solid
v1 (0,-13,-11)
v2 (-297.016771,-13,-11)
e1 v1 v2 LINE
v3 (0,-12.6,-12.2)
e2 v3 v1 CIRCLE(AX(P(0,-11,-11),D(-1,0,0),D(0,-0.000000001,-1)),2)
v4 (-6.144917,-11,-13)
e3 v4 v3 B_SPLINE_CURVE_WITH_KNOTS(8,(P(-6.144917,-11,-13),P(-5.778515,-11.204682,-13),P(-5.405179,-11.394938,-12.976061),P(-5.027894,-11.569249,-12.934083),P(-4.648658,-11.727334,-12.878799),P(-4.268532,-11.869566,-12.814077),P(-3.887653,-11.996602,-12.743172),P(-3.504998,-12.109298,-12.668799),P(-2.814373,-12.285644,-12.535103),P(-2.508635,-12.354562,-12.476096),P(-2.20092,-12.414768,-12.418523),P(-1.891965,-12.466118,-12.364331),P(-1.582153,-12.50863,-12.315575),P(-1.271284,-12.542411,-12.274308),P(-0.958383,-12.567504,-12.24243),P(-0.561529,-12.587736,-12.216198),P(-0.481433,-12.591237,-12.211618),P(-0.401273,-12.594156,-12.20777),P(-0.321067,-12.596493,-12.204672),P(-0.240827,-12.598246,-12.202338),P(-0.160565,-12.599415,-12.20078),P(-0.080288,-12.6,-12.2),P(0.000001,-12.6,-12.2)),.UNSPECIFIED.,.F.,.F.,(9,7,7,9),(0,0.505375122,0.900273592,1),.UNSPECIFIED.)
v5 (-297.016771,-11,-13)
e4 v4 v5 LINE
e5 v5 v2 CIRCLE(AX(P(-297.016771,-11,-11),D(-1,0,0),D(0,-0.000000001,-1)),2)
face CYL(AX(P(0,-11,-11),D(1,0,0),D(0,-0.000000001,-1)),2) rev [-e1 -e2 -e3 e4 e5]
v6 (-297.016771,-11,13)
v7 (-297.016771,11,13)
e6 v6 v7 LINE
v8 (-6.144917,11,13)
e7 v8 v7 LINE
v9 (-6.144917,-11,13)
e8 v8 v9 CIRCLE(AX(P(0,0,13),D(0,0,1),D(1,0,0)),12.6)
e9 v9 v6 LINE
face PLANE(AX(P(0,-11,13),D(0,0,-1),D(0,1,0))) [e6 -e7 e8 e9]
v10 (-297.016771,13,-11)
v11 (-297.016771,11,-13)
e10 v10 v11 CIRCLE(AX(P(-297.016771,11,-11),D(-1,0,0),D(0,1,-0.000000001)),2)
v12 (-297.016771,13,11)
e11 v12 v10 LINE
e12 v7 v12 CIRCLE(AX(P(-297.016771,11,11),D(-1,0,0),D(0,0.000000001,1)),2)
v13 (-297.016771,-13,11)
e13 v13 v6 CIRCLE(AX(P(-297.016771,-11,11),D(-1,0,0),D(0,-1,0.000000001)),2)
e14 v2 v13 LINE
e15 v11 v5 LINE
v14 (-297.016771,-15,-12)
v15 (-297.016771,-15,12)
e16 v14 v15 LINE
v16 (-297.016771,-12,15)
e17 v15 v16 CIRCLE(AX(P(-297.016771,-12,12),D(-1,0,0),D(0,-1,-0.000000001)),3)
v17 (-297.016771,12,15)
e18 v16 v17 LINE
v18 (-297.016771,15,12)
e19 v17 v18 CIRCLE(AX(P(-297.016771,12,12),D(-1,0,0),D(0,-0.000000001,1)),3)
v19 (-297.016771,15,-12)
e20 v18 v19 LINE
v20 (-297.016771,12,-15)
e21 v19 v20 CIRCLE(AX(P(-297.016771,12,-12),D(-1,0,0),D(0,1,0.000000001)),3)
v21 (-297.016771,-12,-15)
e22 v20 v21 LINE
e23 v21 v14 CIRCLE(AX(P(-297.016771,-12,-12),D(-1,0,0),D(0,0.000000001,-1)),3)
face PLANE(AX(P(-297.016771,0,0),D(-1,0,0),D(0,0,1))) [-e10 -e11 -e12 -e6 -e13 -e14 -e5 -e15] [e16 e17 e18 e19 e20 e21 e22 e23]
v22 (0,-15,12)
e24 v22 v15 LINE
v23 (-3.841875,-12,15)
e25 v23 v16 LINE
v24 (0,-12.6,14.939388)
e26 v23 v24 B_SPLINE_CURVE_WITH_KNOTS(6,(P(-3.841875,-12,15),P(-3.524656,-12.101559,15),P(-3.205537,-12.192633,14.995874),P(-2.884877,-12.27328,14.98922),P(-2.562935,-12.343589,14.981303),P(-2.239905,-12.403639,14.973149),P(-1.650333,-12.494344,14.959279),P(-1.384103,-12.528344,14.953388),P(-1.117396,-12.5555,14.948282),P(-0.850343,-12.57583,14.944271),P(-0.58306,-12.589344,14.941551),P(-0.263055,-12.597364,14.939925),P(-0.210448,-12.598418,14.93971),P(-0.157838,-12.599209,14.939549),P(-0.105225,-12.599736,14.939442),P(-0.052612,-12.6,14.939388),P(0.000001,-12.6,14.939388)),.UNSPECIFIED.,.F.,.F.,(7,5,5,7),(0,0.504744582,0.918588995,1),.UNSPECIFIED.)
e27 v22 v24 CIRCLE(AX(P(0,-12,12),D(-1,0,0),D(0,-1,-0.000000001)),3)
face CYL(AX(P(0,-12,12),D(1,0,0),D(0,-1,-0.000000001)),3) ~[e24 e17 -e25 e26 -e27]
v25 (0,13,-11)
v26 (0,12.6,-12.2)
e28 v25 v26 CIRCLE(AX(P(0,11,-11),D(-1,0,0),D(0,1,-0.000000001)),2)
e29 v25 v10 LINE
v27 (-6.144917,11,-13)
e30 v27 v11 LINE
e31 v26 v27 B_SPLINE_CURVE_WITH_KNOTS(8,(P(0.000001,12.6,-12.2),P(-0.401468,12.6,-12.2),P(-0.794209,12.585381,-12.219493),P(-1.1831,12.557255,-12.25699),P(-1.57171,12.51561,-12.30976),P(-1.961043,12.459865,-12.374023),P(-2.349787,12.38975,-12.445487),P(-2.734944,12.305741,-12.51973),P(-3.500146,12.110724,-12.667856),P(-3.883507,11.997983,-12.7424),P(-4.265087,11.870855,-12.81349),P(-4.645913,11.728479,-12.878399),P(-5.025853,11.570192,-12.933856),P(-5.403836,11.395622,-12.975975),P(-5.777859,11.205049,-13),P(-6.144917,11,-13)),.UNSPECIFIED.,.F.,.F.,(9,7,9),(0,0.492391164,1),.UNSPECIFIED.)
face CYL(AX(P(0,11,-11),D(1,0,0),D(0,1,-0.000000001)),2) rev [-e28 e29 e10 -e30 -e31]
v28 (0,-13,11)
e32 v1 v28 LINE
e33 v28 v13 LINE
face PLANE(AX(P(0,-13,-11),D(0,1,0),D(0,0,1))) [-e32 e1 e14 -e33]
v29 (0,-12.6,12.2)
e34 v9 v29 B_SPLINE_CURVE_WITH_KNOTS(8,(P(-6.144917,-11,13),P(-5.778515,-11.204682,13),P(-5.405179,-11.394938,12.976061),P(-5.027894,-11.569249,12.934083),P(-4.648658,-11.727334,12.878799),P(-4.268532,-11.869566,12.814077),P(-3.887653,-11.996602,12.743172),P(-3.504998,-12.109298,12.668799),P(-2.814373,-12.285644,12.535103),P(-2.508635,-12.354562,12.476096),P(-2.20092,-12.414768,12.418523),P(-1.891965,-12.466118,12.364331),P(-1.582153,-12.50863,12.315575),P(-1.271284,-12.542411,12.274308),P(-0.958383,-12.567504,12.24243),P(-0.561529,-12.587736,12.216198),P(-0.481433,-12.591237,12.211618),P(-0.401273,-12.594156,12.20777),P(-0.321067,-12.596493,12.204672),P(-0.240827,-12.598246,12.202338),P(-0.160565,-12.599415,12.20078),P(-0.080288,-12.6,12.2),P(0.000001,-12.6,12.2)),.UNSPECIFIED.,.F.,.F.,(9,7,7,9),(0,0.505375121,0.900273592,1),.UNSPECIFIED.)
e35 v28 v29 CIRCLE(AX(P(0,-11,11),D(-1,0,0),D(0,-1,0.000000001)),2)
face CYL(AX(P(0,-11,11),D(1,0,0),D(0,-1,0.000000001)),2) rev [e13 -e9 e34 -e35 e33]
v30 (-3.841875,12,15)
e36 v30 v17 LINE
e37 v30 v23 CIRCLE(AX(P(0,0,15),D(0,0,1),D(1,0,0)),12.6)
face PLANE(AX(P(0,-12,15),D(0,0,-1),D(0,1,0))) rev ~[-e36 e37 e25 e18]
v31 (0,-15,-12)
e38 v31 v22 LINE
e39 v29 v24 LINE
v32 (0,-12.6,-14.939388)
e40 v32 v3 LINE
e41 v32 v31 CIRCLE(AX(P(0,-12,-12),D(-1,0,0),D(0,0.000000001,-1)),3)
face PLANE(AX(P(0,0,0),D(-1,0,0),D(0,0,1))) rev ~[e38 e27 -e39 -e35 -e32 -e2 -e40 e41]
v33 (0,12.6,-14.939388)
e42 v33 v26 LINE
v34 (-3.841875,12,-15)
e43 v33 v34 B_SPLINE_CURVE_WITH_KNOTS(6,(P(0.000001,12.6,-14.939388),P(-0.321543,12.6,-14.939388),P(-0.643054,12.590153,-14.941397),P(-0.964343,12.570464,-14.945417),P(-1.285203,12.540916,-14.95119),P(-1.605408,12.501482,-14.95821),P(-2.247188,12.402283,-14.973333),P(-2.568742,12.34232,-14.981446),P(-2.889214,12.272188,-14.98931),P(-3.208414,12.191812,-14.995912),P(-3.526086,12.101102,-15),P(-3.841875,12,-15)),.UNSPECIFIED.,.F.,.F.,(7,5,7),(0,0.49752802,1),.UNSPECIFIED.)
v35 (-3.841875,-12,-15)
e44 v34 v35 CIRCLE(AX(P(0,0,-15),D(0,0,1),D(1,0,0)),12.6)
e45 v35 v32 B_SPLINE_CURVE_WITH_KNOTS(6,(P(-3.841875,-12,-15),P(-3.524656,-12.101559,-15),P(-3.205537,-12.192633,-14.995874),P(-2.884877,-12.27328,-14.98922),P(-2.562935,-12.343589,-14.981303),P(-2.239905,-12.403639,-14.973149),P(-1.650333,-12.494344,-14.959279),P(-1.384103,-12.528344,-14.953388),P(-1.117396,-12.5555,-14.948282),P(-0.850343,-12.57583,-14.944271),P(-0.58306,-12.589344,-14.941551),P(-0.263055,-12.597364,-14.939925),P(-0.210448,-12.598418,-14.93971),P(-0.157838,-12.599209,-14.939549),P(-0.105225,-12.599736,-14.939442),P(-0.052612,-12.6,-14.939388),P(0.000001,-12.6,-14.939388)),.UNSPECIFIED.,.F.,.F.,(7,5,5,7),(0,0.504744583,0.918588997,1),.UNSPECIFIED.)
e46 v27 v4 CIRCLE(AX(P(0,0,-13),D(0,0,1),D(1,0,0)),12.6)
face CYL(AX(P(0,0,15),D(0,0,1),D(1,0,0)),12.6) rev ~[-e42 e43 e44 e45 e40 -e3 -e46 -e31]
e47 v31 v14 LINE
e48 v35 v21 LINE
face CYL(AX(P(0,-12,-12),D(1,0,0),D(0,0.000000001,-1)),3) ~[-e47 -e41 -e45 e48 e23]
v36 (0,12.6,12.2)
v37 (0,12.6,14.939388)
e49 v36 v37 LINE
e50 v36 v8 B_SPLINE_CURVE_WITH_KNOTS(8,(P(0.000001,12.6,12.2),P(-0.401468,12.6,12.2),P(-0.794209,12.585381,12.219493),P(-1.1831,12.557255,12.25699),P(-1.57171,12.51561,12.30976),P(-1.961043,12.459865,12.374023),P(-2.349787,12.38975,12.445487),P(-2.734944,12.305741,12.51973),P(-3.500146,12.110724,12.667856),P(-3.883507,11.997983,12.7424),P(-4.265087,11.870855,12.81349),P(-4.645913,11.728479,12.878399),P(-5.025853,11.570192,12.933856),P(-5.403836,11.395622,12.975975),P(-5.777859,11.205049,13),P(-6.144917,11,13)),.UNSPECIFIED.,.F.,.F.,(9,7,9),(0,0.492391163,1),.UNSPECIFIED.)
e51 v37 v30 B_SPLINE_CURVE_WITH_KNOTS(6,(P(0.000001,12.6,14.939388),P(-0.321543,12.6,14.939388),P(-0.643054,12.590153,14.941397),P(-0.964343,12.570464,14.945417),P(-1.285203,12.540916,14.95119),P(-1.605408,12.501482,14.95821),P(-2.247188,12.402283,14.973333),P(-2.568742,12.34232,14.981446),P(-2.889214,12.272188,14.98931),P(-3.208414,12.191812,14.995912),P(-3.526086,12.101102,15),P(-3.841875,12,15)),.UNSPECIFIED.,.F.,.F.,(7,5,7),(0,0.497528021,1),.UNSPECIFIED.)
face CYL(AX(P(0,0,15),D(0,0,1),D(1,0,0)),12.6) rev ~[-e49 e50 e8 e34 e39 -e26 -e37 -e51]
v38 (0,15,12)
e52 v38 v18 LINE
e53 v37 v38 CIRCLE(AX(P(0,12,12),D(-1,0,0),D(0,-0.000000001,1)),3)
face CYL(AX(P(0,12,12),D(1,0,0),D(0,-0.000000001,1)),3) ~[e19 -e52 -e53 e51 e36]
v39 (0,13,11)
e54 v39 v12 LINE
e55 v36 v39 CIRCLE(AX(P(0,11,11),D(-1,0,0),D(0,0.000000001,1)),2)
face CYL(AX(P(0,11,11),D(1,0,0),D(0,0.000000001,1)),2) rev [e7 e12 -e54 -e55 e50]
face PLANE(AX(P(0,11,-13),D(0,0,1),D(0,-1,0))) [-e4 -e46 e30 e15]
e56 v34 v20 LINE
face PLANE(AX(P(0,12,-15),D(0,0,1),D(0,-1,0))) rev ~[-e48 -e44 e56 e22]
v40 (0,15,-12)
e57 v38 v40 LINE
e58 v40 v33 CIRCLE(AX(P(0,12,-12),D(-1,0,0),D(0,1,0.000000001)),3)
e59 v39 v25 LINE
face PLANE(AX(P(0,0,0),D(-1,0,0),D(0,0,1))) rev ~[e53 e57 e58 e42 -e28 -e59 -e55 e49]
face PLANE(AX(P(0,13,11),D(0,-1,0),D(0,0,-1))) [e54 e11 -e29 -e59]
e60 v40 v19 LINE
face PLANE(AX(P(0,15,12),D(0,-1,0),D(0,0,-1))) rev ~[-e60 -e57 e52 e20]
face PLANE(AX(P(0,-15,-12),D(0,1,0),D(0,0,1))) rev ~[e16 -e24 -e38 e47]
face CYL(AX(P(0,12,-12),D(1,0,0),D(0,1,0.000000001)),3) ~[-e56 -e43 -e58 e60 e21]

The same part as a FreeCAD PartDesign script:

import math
import FreeCAD as App
import Part
import Sketcher

V = App.Vector

doc = App.newDocument("Part")
body = doc.addObject("PartDesign::Body", "Body")

sketch1 = body.newObject("Sketcher::SketchObject", "Sketch")
sketch1.AttachmentSupport = (doc.getObject("YZ_Plane"), [""])
sketch1.MapMode = "FlatFace"
sketch1.addGeometry(Part.LineSegment(V(15, -12, 0), V(15, 12, 0)), False)
sketch1.addGeometry(Part.ArcOfCircle(Part.Circle(V(12, 12, 0), V(0, 0, 1), 3), math.radians(0), math.radians(90)), False)
sketch1.addGeometry(Part.LineSegment(V(12, 15, 0), V(-12, 15, 0)), False)
sketch1.addGeometry(Part.ArcOfCircle(Part.Circle(V(-12, 12, 0), V(0, 0, 1), 3), math.radians(90), math.radians(180)), False)
sketch1.addGeometry(Part.LineSegment(V(-15, 12, 0), V(-15, -12, 0)), False)
sketch1.addGeometry(Part.ArcOfCircle(Part.Circle(V(-12, -12, 0), V(0, 0, 1), 3), math.radians(180), math.radians(270)), False)
sketch1.addGeometry(Part.LineSegment(V(-12, -15, 0), V(12, -15, 0)), False)
sketch1.addGeometry(Part.ArcOfCircle(Part.Circle(V(12, -12, 0), V(0, 0, 1), 3), math.radians(-90), math.radians(0)), False)
sketch1.addGeometry(Part.LineSegment(V(13, 11, 0), V(13, -11, 0)), False)
sketch1.addGeometry(Part.ArcOfCircle(Part.Circle(V(11, -11, 0), V(0, 0, 1), 2), math.radians(-90), math.radians(0)), False)
sketch1.addGeometry(Part.LineSegment(V(11, -13, 0), V(-11, -13, 0)), False)
sketch1.addGeometry(Part.ArcOfCircle(Part.Circle(V(-11, -11, 0), V(0, 0, 1), 2), math.radians(-180), math.radians(-90)), False)
sketch1.addGeometry(Part.LineSegment(V(-13, -11, 0), V(-13, 11, 0)), False)
sketch1.addGeometry(Part.ArcOfCircle(Part.Circle(V(-11, 11, 0), V(0, 0, 1), 2), math.radians(90), math.radians(180)), False)
sketch1.addGeometry(Part.LineSegment(V(-11, 13, 0), V(11, 13, 0)), False)
sketch1.addGeometry(Part.ArcOfCircle(Part.Circle(V(11, 11, 0), V(0, 0, 1), 2), math.radians(0), math.radians(90)), False)
sketch1.addConstraint(Sketcher.Constraint("Tangent", 0, 2, 1, 1))
sketch1.addConstraint(Sketcher.Constraint("Tangent", 1, 2, 2, 1))
sketch1.addConstraint(Sketcher.Constraint("Tangent", 2, 2, 3, 1))
sketch1.addConstraint(Sketcher.Constraint("Tangent", 3, 2, 4, 1))
sketch1.addConstraint(Sketcher.Constraint("Tangent", 4, 2, 5, 1))
sketch1.addConstraint(Sketcher.Constraint("Tangent", 5, 2, 6, 1))
sketch1.addConstraint(Sketcher.Constraint("Tangent", 6, 2, 7, 1))
sketch1.addConstraint(Sketcher.Constraint("Tangent", 7, 2, 0, 1))
sketch1.addConstraint(Sketcher.Constraint("Tangent", 8, 2, 9, 2))
sketch1.addConstraint(Sketcher.Constraint("Tangent", 9, 1, 10, 1))
sketch1.addConstraint(Sketcher.Constraint("Tangent", 10, 2, 11, 2))
sketch1.addConstraint(Sketcher.Constraint("Tangent", 11, 1, 12, 1))
sketch1.addConstraint(Sketcher.Constraint("Tangent", 12, 2, 13, 2))
sketch1.addConstraint(Sketcher.Constraint("Tangent", 13, 1, 14, 1))
sketch1.addConstraint(Sketcher.Constraint("Tangent", 14, 2, 15, 2))
sketch1.addConstraint(Sketcher.Constraint("Tangent", 15, 1, 8, 1))
sketch1.addConstraint(Sketcher.Constraint("Vertical", 0))
sketch1.addConstraint(Sketcher.Constraint("Horizontal", 2))
sketch1.addConstraint(Sketcher.Constraint("Vertical", 4))
sketch1.addConstraint(Sketcher.Constraint("Horizontal", 6))
sketch1.addConstraint(Sketcher.Constraint("Vertical", 8))
sketch1.addConstraint(Sketcher.Constraint("Horizontal", 10))
sketch1.addConstraint(Sketcher.Constraint("Vertical", 12))
sketch1.addConstraint(Sketcher.Constraint("Horizontal", 14))
sketch1.addConstraint(Sketcher.Constraint("Equal", 1, 3))
sketch1.addConstraint(Sketcher.Constraint("Equal", 3, 5))
sketch1.addConstraint(Sketcher.Constraint("Equal", 5, 7))
sketch1.addConstraint(Sketcher.Constraint("Equal", 9, 11))
sketch1.addConstraint(Sketcher.Constraint("Equal", 11, 13))
sketch1.addConstraint(Sketcher.Constraint("Equal", 13, 15))
sketch1.addConstraint(Sketcher.Constraint("Symmetric", 1, 3, 5, 3, -1, 1))
sketch1.addConstraint(Sketcher.Constraint("Symmetric", 9, 3, 13, 3, -1, 1))
sketch1.addConstraint(Sketcher.Constraint("Equal", 6, 0))
sketch1.addConstraint(Sketcher.Constraint("Equal", 14, 8))
sketch1.addConstraint(Sketcher.Constraint("Radius", 1, 3.0))
sketch1.addConstraint(Sketcher.Constraint("Radius", 9, 2.0))
sketch1.addConstraint(Sketcher.Constraint("DistanceX", 2, 2, 2, 1, 24.0))
sketch1.addConstraint(Sketcher.Constraint("DistanceX", 10, 2, 10, 1, 22.0))
pad1 = body.newObject("PartDesign::Pad", "Pad")
pad1.Profile = sketch1
pad1.Length = 297.016771
pad1.Reversed = True

sketch2 = body.newObject("Sketcher::SketchObject", "Sketch001")
sketch2.AttachmentSupport = (doc.getObject("XY_Plane"), [""])
sketch2.MapMode = "FlatFace"
sketch2.AttachmentOffset = App.Placement(V(0, 0, 15), App.Rotation())
sketch2.addGeometry(Part.Circle(V(0, 0, 0), V(0, 0, 1), 13), False)
sketch2.addConstraint(Sketcher.Constraint("Coincident", 0, 3, -1, 1))
sketch2.addConstraint(Sketcher.Constraint("Diameter", 0, 25.2))
pocket1 = body.newObject("PartDesign::Pocket", "Pocket")
pocket1.Profile = sketch2
pocket1.Type = "ThroughAll"

doc.recompute()
